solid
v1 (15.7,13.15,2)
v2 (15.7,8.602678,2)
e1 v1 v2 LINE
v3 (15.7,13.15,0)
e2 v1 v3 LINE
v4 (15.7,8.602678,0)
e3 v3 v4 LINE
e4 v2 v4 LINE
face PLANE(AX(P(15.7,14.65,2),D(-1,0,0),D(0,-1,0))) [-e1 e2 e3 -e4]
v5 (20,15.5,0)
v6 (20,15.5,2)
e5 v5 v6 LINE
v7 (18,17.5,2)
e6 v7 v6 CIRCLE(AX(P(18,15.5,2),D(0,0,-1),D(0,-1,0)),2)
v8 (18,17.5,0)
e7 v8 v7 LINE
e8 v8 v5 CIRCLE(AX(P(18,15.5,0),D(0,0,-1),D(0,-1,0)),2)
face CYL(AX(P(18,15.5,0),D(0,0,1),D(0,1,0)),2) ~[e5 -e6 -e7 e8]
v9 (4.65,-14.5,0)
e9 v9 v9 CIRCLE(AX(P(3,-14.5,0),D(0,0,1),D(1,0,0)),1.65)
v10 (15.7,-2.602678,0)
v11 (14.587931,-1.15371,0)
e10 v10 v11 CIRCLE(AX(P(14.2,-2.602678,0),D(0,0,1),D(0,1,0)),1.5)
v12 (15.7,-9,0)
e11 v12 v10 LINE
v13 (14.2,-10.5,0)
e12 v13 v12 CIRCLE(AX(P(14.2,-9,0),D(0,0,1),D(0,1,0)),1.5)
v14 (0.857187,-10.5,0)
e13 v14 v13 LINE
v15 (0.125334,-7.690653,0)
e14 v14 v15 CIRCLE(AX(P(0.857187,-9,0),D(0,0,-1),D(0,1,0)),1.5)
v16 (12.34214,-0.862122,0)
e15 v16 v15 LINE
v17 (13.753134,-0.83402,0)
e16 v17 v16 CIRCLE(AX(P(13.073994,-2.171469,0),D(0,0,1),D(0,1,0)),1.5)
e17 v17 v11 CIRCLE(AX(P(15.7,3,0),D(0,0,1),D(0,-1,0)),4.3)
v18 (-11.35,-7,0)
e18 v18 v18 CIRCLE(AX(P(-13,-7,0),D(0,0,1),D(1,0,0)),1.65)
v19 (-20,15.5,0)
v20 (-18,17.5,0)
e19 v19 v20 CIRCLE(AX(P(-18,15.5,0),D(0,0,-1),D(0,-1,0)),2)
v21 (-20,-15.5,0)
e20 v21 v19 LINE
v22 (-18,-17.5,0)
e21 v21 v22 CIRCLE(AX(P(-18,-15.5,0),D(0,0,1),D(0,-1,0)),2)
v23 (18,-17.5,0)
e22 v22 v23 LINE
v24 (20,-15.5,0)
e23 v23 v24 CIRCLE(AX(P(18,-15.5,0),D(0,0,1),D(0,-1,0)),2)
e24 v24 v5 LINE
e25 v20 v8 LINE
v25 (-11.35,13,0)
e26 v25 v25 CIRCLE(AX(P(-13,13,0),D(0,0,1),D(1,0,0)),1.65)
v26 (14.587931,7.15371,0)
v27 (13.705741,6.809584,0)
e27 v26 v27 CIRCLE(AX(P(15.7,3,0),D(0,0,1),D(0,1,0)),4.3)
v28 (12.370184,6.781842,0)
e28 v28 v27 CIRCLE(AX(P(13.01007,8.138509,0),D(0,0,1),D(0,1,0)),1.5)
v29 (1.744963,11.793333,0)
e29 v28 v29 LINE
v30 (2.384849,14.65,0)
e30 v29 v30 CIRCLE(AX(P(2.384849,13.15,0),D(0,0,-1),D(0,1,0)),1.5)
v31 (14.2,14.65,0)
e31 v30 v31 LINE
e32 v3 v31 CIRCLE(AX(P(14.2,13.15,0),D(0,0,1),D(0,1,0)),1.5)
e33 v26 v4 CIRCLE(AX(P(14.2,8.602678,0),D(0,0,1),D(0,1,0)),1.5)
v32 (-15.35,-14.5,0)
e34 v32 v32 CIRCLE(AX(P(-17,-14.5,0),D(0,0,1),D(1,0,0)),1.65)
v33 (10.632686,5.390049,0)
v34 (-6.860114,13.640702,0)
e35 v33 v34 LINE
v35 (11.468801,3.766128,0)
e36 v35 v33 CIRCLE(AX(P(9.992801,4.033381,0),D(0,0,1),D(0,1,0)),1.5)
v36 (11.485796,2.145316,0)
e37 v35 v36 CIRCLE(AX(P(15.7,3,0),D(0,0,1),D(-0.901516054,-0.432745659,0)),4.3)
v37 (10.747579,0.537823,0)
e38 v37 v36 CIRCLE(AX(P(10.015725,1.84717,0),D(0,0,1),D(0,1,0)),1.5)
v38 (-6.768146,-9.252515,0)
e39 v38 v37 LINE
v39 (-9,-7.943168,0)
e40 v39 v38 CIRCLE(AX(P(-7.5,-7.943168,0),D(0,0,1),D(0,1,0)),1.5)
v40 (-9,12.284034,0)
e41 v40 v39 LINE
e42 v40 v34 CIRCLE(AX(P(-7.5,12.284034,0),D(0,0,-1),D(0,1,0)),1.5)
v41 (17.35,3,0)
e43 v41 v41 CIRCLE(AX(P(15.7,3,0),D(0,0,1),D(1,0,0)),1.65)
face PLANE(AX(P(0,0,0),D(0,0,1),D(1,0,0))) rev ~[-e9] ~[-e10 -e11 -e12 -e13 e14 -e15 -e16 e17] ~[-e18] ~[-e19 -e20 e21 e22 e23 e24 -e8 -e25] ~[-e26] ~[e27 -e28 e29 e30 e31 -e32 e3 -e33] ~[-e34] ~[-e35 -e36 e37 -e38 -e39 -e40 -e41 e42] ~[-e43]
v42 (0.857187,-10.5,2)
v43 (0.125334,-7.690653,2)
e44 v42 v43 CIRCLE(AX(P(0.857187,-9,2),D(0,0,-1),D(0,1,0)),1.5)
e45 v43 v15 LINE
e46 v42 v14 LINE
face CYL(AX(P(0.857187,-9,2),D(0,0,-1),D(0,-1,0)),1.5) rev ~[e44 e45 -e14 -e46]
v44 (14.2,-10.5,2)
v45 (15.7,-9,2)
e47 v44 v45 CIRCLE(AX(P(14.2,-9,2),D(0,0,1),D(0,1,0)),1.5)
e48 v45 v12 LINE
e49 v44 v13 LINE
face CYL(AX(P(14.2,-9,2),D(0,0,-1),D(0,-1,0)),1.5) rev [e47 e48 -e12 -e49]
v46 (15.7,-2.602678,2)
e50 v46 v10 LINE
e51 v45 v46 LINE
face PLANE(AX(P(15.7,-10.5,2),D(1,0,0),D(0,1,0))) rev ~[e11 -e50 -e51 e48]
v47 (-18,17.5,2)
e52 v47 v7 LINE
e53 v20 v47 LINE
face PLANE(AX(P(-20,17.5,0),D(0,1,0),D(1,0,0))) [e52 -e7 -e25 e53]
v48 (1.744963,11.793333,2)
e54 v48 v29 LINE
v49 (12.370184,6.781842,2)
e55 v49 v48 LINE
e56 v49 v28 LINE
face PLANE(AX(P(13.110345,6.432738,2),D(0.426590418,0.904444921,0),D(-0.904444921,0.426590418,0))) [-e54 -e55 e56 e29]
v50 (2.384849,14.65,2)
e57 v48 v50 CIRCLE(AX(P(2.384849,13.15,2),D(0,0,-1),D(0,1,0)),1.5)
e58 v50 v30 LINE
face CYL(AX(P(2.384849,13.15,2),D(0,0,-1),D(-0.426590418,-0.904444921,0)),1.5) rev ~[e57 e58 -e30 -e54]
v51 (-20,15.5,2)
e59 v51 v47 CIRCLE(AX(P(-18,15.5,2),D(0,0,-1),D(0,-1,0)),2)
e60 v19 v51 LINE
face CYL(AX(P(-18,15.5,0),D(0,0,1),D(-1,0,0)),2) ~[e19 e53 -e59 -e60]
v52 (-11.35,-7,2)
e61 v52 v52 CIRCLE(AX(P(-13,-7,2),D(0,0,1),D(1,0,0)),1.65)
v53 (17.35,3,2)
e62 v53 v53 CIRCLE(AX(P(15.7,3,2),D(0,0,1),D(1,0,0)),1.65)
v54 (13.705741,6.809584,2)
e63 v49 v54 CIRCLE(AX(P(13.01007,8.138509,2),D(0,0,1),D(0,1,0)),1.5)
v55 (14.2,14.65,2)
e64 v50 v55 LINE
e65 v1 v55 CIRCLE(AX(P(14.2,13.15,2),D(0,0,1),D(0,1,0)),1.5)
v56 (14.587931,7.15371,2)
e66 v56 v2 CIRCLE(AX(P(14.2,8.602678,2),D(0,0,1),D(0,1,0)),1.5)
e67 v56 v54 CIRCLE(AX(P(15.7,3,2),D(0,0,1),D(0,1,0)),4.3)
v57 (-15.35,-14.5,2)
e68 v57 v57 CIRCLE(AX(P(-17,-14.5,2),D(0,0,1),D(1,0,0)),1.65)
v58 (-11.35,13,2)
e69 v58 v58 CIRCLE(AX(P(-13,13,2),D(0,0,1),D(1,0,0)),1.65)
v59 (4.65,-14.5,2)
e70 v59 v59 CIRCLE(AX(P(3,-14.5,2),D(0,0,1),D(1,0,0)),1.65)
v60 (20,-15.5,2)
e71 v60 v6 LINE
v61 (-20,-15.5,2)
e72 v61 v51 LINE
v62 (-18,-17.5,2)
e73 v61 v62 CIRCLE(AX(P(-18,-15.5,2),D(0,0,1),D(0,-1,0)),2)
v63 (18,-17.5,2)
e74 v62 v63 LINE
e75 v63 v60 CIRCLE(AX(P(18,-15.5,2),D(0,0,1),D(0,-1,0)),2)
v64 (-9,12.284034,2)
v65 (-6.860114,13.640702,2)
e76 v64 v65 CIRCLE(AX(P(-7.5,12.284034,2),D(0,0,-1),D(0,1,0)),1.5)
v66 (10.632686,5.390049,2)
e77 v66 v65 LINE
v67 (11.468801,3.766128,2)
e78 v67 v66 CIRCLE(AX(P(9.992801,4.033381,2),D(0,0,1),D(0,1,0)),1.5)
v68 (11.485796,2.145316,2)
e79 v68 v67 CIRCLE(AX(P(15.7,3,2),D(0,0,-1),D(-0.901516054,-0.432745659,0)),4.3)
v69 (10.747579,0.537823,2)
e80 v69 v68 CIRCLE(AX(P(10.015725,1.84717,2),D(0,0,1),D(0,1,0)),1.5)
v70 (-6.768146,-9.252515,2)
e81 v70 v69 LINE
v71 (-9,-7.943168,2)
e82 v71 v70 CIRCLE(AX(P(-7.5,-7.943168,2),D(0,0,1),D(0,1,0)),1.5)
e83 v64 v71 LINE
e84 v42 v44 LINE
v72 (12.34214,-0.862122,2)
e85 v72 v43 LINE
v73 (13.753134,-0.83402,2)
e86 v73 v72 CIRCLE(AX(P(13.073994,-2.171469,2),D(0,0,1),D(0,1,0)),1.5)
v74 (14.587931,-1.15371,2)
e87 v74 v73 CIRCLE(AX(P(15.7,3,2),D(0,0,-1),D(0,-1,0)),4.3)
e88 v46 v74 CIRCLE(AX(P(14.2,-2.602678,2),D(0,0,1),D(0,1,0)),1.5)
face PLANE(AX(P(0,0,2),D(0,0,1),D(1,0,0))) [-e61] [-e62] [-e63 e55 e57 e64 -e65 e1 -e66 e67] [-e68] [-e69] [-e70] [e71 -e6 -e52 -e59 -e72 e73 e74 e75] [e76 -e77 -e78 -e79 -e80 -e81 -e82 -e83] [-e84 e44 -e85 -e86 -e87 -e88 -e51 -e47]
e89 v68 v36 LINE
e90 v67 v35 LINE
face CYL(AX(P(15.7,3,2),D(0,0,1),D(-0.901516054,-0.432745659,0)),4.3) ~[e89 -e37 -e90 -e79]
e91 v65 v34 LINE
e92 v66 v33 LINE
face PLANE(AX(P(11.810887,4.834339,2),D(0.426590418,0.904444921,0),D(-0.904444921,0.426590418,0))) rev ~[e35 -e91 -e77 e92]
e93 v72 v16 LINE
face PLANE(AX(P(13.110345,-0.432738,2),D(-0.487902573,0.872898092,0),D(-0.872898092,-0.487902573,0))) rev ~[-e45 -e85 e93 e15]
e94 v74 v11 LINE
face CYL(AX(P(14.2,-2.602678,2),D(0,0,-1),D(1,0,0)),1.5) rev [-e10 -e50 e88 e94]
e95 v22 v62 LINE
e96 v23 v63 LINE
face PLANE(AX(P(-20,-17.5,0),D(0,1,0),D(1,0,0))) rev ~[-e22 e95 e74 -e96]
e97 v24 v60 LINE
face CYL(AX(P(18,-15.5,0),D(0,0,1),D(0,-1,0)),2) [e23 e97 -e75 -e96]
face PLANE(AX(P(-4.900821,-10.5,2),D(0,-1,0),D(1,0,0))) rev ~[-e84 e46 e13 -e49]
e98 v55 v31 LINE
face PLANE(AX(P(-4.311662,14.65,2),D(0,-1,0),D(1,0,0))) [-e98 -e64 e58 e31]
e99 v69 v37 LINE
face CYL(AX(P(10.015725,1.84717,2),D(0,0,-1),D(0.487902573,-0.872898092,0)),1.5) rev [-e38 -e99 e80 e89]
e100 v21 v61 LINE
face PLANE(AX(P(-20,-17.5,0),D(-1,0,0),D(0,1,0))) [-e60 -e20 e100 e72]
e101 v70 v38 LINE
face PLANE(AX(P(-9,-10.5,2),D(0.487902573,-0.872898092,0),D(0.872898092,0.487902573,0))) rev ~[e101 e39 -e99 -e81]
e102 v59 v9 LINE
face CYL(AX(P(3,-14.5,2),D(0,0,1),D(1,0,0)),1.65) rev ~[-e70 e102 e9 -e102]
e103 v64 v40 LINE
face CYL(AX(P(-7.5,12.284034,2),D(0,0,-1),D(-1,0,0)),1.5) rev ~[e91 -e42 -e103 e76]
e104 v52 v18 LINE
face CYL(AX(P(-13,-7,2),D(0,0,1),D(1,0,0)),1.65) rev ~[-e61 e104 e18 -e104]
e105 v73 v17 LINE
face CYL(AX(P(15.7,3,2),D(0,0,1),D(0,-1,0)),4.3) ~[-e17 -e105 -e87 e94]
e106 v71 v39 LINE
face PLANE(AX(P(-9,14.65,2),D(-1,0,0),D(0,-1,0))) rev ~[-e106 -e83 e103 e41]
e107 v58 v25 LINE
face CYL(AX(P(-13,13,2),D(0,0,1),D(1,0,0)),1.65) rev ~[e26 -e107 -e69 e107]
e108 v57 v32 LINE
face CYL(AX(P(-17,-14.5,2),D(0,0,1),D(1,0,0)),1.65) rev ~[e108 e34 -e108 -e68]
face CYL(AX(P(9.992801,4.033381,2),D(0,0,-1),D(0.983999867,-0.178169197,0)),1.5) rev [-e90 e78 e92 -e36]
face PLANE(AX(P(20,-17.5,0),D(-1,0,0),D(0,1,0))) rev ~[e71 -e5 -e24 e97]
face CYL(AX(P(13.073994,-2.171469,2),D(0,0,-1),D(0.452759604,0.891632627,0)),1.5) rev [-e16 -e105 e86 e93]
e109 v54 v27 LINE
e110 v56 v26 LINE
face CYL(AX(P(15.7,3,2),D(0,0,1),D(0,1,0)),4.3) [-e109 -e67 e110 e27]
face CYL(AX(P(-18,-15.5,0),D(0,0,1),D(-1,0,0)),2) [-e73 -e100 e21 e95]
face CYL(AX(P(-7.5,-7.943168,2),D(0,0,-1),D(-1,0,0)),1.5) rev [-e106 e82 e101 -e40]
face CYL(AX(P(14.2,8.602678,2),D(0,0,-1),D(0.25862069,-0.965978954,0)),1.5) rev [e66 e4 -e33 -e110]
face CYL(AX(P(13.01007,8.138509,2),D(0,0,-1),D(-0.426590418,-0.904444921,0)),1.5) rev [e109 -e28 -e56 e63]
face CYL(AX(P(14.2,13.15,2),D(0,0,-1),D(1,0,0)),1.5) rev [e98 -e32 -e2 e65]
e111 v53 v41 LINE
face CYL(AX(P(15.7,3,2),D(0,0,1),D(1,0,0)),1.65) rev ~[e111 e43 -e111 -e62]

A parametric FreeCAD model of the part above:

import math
import FreeCAD as App
import Part
import Sketcher
from FreeCAD import Vector


def edges_at(feature, points):
    """Names of the edges that pass closest to the given points."""
    edges = feature.Shape.Edges
    near = lambda p: min(range(len(edges)), key=lambda i: edges[i].distToShape(Part.Vertex(*p))[0])
    return sorted({f"Edge{near(p) + 1}" for p in points})


def add_polygon(sketch, points):
    """Adds a closed chain of lines whose ends are joined by coincident constraints."""
    first, n = sketch.GeometryCount, len(points)
    for a, b in zip(points, points[1:] + points[:1]):
        sketch.addGeometry(Part.LineSegment(App.Vector(*a, 0), App.Vector(*b, 0)), False)
    for i in range(n):
        sketch.addConstraint(Sketcher.Constraint("Coincident", first + i, 2, first + (i + 1) % n, 1))

doc = App.newDocument("Part")
body = doc.addObject("PartDesign::Body", "Body")

sketch1 = body.newObject("Sketcher::SketchObject", "Sketch")
sketch1.AttachmentSupport = (doc.getObject("XY_Plane"), [""])
sketch1.MapMode = "FlatFace"
add_polygon(sketch1, [(-20, 18), (-20, -18), (20, -18), (20, 18)])
sketch1.addConstraint(Sketcher.Constraint("Vertical", 0))
sketch1.addConstraint(Sketcher.Constraint("Horizontal", 1))
sketch1.addConstraint(Sketcher.Constraint("Vertical", 2))
sketch1.addConstraint(Sketcher.Constraint("Horizontal", 3))
sketch1.addConstraint(Sketcher.Constraint("Symmetric", 0, 2, 2, 2, -1, 1))
sketch1.addConstraint(Sketcher.Constraint("DistanceX", 1, 1, 1, 2, 40.0))
sketch1.addConstraint(Sketcher.Constraint("DistanceY", 0, 2, 0, 1, 35.0))
pad1 = body.newObject("PartDesign::Pad", "Pad")
pad1.Profile = sketch1
pad1.Length = 2

sketch2 = body.newObject("Sketcher::SketchObject", "Sketch001")
sketch2.AttachmentSupport = (doc.getObject("XY_Plane"), [""])
sketch2.MapMode = "FlatFace"
sketch2.AttachmentOffset = App.Placement(Vector(0, 0, 2), App.Rotation())
sketch2.addGeometry(Part.Circle(Vector(-17, -14.5, 0), Vector(0, 0, 1), 1.6), False)
sketch2.addGeometry(Part.Circle(Vector(3, -14.5, 0), Vector(0, 0, 1), 1.6), False)
sketch2.addGeometry(Part.Circle(Vector(-13, -7, 0), Vector(0, 0, 1), 1.6), False)
sketch2.addGeometry(Part.Circle(Vector(-13, 13, 0), Vector(0, 0, 1), 1.6), False)
sketch2.addGeometry(Part.Circle(Vector(15.7, 3, 0), Vector(0, 0, 1), 1.6), False)
sketch2.addConstraint(Sketcher.Constraint("Equal", 0, 1))
sketch2.addConstraint(Sketcher.Constraint("Equal", 1, 2))
sketch2.addConstraint(Sketcher.Constraint("Equal", 2, 3))
sketch2.addConstraint(Sketcher.Constraint("Equal", 3, 4))
sketch2.addConstraint(Sketcher.Constraint("Horizontal", 0, 3, 1, 3))
sketch2.addConstraint(Sketcher.Constraint("Vertical", 2, 3, 3, 3))
sketch2.addConstraint(Sketcher.Constraint("Diameter", 0, 3.3))
sketch2.addConstraint(Sketcher.Constraint("DistanceX", 0, 3, -1, 1, 17.0))
sketch2.addConstraint(Sketcher.Constraint("DistanceX", -1, 1, 1, 3, 3.0))
sketch2.addConstraint(Sketcher.Constraint("DistanceX", 2, 3, -1, 1, 13.0))
sketch2.addConstraint(Sketcher.Constraint("DistanceY", 2, 3, -1, 1, 7.0))
sketch2.addConstraint(Sketcher.Constraint("DistanceY", -1, 1, 3, 3, 13.0))
sketch2.addConstraint(Sketcher.Constraint("DistanceY", -1, 1, 4, 3, 3.0))
sketch2.addConstraint(Sketcher.Constraint("DistanceY", 0, 3, -1, 1, 14.5))
sketch2.addConstraint(Sketcher.Constraint("DistanceX", -1, 1, 4, 3, 15.7))
pocket1 = body.newObject("PartDesign::Pocket", "Pocket")
pocket1.Profile = sketch2
pocket1.Length = 2
doc.recompute()

fillet = body.newObject("PartDesign::Fillet", "Fillet")
fillet.Base = (pocket1, edges_at(pocket1, [
    (20, -17.5, 1),
    (-20, -17.5, 1),
    (-20, 17.5, 1),
    (20, 17.5, 1),
]))
fillet.Radius = 2

sketch3 = body.newObject("Sketcher::SketchObject", "Sketch002")
sketch3.AttachmentSupport = (doc.getObject("XY_Plane"), [""])
sketch3.MapMode = "FlatFace"
sketch3.AttachmentOffset = App.Placement(Vector(0, 0, 2), App.Rotation())
sketch3.addGeometry(Part.LineSegment(Vector(-9, 14.7, 0), Vector(-9, -10.5, 0)), False)
sketch3.addGeometry(Part.LineSegment(Vector(-9, -10.5, 0), Vector(11.8, 1.1, 0)), False)
sketch3.addGeometry(Part.ArcOfCircle(Part.Circle(Vector(15.7, 3, 0), Vector(0, 0, 1), 4.3), math.radians(155), math.radians(206)), False)
sketch3.addGeometry(Part.LineSegment(Vector(11.8, 4.8, 0), Vector(-9, 14.7, 0)), False)
sketch3.addGeometry(Part.LineSegment(Vector(-4.9, -10.5, 0), Vector(15.7, -10.5, 0)), False)
sketch3.addGeometry(Part.LineSegment(Vector(15.7, -10.5, 0), Vector(15.7, -1.3, 0)), False)
sketch3.addGeometry(Part.ArcOfCircle(Part.Circle(Vector(15.7, 3, 0), Vector(0, 0, 1), 4.3), math.radians(-127), math.radians(-90)), False)
sketch3.addGeometry(Part.LineSegment(Vector(13.1, -0.4, 0), Vector(-4.9, -10.5, 0)), False)
sketch3.addGeometry(Part.LineSegment(Vector(15.7, 14.7, 0), Vector(-4.3, 14.7, 0)), False)
sketch3.addGeometry(Part.LineSegment(Vector(-4.3, 14.7, 0), Vector(13.1, 6.4, 0)), False)
sketch3.addGeometry(Part.ArcOfCircle(Part.Circle(Vector(15.7, 3, 0), Vector(0, 0, 1), 4.3), math.radians(90), math.radians(127)), False)
sketch3.addGeometry(Part.LineSegment(Vector(15.7, 7.3, 0), Vector(15.7, 14.7, 0)), False)
sketch3.addConstraint(Sketcher.Constraint("Coincident", 0, 2, 1, 1))
sketch3.addConstraint(Sketcher.Constraint("Coincident", 1, 2, 2, 2))
sketch3.addConstraint(Sketcher.Constraint("Coincident", 2, 1, 3, 1))
sketch3.addConstraint(Sketcher.Constraint("Coincident", 3, 2, 0, 1))
sketch3.addConstraint(Sketcher.Constraint("Coincident", 4, 2, 5, 1))
sketch3.addConstraint(Sketcher.Constraint("Coincident", 5, 2, 6, 2))
sketch3.addConstraint(Sketcher.Constraint("Coincident", 6, 1, 7, 1))
sketch3.addConstraint(Sketcher.Constraint("Coincident", 7, 2, 4, 1))
sketch3.addConstraint(Sketcher.Constraint("Coincident", 8, 2, 9, 1))
sketch3.addConstraint(Sketcher.Constraint("Coincident", 9, 2, 10, 2))
sketch3.addConstraint(Sketcher.Constraint("Coincident", 10, 1, 11, 1))
sketch3.addConstraint(Sketcher.Constraint("Coincident", 11, 2, 8, 1))
sketch3.addConstraint(Sketcher.Constraint("Vertical", 0))
sketch3.addConstraint(Sketcher.Constraint("Horizontal", 4))
sketch3.addConstraint(Sketcher.Constraint("Vertical", 5))
sketch3.addConstraint(Sketcher.Constraint("Horizontal", 8))
sketch3.addConstraint(Sketcher.Constraint("Vertical", 11))
sketch3.addConstraint(Sketcher.Constraint("Coincident", 6, 3, 2, 3))
sketch3.addConstraint(Sketcher.Constraint("Coincident", 10, 3, 2, 3))
sketch3.addConstraint(Sketcher.Constraint("Equal", 2, 6))
sketch3.addConstraint(Sketcher.Constraint("Equal", 6, 10))
sketch3.addConstraint(Sketcher.Constraint("Parallel", 1, 7))
sketch3.addConstraint(Sketcher.Constraint("Parallel", 3, 9))
sketch3.addConstraint(Sketcher.Constraint("Horizontal", 0, 2, 4, 2))
sketch3.addConstraint(Sketcher.Constraint("Horizontal", 3, 2, 8, 2))
sketch3.addConstraint(Sketcher.Constraint("Vertical", 10, 3, 4, 2))
sketch3.addConstraint(Sketcher.Constraint("Vertical", 6, 1, 9, 2))
sketch3.addConstraint(Sketcher.Constraint("Vertical", 5, 2, 10, 1))
sketch3.addConstraint(Sketcher.Constraint("Radius", 2, 4.3))
sketch3.addConstraint(Sketcher.Constraint("DistanceY", 5, 1, 5, 2, 9.2))
sketch3.addConstraint(Sketcher.Constraint("DistanceY", -1, 1, 2, 3, 3.0))
sketch3.addConstraint(Sketcher.Constraint("DistanceX", 0, 2, -1, 1, 9.0))
sketch3.addConstraint(Sketcher.Constraint("DistanceY", 0, 2, 0, 1, 25.15))
sketch3.addConstraint(Sketcher.Constraint("DistanceX", -1, 1, 2, 3, 15.7))
sketch3.addConstraint(Sketcher.Constraint("DistanceX", 4, 1, 4, 2, 20.600821))
sketch3.addConstraint(Sketcher.Constraint("DistanceX", 7, 2, 1, 2, 16.724302))
sketch3.addConstraint(Sketcher.Constraint("DistanceY", 2, 1, 9, 2, 1.598399))
pocket2 = body.newObject("PartDesign::Pocket", "Pocket001")
pocket2.Profile = sketch3
pocket2.Length = 10
doc.recompute()

fillet2 = body.newObject("PartDesign::Fillet", "Fillet001")
fillet2.Base = (pocket2, edges_at(pocket2, [
    (-4.901, -10.5, 1),
    (13.11, -0.433, 1),
    (15.7, -1.3, 1),
    (15.7, -10.5, 1),
    (13.11, 6.433, 1),
    (-4.312, 14.65, 1),
    (15.7, 14.65, 1),
    (15.7, 7.3, 1),
    (-9, 14.65, 1),
    (11.811, 4.834, 1),
    (11.823, 1.139, 1),
    (-9, -10.5, 1),
]))
fillet2.Radius = 1.5

doc.recompute()
